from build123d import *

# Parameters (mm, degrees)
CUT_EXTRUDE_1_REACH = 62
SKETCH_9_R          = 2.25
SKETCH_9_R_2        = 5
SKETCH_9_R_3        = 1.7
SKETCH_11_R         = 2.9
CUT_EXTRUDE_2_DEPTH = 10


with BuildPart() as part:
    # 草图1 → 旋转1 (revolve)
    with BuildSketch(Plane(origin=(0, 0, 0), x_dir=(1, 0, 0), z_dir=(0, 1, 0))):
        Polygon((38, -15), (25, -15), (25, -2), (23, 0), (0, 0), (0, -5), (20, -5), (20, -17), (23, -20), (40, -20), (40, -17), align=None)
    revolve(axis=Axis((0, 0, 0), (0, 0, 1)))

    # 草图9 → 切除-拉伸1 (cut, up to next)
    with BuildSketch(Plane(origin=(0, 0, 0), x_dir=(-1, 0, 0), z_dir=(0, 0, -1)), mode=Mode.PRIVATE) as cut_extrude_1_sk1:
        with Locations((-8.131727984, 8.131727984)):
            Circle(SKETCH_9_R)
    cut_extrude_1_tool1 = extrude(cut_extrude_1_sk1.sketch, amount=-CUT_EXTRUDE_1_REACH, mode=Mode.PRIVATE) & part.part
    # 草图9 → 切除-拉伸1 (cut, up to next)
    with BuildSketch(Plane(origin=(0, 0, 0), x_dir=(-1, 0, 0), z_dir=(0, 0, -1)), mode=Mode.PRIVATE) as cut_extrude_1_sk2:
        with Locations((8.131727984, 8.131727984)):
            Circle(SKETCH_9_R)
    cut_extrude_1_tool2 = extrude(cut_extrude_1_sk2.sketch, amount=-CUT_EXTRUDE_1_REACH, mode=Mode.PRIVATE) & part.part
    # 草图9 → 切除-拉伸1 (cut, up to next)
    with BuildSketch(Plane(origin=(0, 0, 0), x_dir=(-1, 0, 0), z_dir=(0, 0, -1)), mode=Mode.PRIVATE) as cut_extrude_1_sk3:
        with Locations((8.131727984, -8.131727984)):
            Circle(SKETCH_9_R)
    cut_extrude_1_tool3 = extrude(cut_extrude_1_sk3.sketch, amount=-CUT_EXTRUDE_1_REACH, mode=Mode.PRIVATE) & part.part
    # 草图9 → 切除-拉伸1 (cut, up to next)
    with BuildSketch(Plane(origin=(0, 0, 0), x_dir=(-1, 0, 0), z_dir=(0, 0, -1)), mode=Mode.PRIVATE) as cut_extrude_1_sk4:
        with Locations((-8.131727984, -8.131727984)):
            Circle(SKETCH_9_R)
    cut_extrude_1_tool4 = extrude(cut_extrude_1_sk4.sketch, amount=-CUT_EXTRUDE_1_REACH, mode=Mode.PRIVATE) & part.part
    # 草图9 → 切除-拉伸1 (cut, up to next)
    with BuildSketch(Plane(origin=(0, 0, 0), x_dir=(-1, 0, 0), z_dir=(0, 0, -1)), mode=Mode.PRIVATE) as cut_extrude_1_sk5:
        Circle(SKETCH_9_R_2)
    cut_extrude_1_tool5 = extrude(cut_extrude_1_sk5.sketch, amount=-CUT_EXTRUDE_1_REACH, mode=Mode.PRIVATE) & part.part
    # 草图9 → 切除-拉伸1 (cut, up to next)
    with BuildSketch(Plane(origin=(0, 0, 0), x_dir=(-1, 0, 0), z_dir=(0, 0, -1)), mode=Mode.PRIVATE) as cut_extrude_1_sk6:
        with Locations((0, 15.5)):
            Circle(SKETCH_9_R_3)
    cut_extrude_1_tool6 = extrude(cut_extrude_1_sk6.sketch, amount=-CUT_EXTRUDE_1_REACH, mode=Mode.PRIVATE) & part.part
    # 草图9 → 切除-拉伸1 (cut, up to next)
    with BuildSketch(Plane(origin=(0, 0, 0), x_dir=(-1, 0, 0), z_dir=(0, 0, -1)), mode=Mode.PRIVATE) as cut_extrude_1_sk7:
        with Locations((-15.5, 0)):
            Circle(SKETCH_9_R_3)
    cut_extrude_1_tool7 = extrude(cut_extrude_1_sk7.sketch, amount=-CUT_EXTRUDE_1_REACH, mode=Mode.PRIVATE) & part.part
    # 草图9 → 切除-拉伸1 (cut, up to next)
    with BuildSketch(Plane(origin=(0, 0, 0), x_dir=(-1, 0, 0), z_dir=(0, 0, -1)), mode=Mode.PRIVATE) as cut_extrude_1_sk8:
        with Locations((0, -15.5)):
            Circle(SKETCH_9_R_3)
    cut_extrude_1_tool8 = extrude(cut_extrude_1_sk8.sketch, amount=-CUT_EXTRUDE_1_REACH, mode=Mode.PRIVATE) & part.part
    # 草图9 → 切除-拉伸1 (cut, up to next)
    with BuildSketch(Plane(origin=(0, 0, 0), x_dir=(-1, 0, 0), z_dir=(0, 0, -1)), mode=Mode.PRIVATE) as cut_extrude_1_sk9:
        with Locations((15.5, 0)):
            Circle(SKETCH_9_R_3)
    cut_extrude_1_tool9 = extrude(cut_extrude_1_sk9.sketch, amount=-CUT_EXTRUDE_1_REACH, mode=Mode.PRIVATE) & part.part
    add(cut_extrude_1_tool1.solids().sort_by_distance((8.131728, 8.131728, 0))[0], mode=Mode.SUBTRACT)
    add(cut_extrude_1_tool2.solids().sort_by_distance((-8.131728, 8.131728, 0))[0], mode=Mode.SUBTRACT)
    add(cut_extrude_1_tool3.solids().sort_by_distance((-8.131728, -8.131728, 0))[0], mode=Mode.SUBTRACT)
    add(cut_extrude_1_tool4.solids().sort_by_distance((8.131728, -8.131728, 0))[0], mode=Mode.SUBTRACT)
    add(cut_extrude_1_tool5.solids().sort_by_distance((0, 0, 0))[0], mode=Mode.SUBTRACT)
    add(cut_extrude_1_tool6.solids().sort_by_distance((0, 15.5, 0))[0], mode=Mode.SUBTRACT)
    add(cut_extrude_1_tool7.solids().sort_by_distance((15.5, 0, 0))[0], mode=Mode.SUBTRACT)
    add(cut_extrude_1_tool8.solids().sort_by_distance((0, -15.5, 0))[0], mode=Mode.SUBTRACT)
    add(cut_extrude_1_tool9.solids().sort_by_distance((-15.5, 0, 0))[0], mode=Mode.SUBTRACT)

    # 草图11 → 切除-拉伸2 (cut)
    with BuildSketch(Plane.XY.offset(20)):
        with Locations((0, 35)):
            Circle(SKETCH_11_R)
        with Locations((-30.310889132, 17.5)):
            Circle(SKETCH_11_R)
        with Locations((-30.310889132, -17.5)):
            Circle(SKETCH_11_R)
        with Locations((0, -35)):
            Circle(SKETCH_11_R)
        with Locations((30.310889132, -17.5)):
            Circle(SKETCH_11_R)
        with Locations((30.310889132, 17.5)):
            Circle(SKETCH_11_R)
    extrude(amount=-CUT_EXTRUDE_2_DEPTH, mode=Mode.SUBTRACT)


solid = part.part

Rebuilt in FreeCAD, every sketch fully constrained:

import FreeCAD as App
import Part
import Sketcher
from FreeCAD import Vector
Q = App.Units.Quantity


def add_polygon(sketch, points):
    """Adds a closed chain of lines whose ends are joined by coincident constraints."""
    first, n = sketch.GeometryCount, len(points)
    for a, b in zip(points, points[1:] + points[:1]):
        sketch.addGeometry(Part.LineSegment(App.Vector(*a, 0), App.Vector(*b, 0)), False)
    for i in range(n):
        sketch.addConstraint(Sketcher.Constraint("Coincident", first + i, 2, first + (i + 1) % n, 1))

doc = App.newDocument("Part")
params = doc.addObject("Spreadsheet::Sheet", "Params")
for row, (alias, value) in enumerate([
    ("sketch1_width", "13 mm"),
    ("sketch1_width2", "23 mm"),
    ("sketch1_width3", "20 mm"),
    ("sketch1_width4", "17 mm"),
    ("sketch1_height", "5 mm"),
    ("revolution_angle", "360 deg"),
    ("sketch2_diameter", "4.5 mm"),
    ("sketch3_diameter", "4.5 mm"),
    ("sketch4_diameter", "4.5 mm"),
    ("sketch5_diameter", "4.5 mm"),
    ("sketch6_diameter", "10 mm"),
    ("sketch7_diameter", "3.4 mm"),
    ("sketch8_diameter", "3.4 mm"),
    ("sketch9_diameter", "3.4 mm"),
    ("sketch10_diameter", "3.4 mm"),
    ("sketch11_diameter", "5.8 mm"),
    ("pocket10_length", "10 mm"),
], start=1):
    params.set(f"A{row}", alias)
    params.set(f"B{row}", "=" + value)
    params.setAlias(f"B{row}", alias)

body = doc.addObject("PartDesign::Body", "Body")

# Sketch on XZ plane
sketch1 = body.newObject("Sketcher::SketchObject", "Sketch")
sketch1.AttachmentSupport = (doc.getObject("XZ_Plane"), [""])
sketch1.MapMode = "FlatFace"
add_polygon(sketch1, [(38, 15), (25, 15), (25, 2), (23, 0), (0, 0), (0, 5), (20, 5), (20, 17), (23, 20), (40, 20), (40, 17)])  # lines 0-10
sketch1.addConstraint(Sketcher.Constraint("Horizontal", 0))
sketch1.addConstraint(Sketcher.Constraint("Vertical", 1))
sketch1.addConstraint(Sketcher.Constraint("Horizontal", 3))
sketch1.addConstraint(Sketcher.Constraint("Vertical", 4))
sketch1.addConstraint(Sketcher.Constraint("Horizontal", 5))
sketch1.addConstraint(Sketcher.Constraint("Vertical", 6))
sketch1.addConstraint(Sketcher.Constraint("Horizontal", 8))
sketch1.addConstraint(Sketcher.Constraint("Vertical", 9))
sketch1.addConstraint(Sketcher.Constraint("Coincident", 3, 2, -1, 1))
sketch1.addConstraint(Sketcher.Constraint("Parallel", 2, 7))
sketch1.addConstraint(Sketcher.Constraint("Parallel", 7, 10))
sketch1.addConstraint(Sketcher.Constraint("Horizontal", 6, 2, 9, 2))
sketch1.addConstraint(Sketcher.Constraint("Vertical", 2, 2, 7, 2))
sketch1.addConstraint(Sketcher.Constraint("Equal", 0, 1))
sketch1.addConstraint(Sketcher.Constraint("Equal", 2, 10))
sketch1.addConstraint(Sketcher.Constraint("DistanceX", 0, 2, 0, 1, Q("13 mm")))
sketch1.addConstraint(Sketcher.Constraint("DistanceX", 3, 2, 3, 1, Q("23 mm")))
sketch1.addConstraint(Sketcher.Constraint("DistanceX", 5, 1, 5, 2, Q("20 mm")))
sketch1.addConstraint(Sketcher.Constraint("DistanceX", 8, 1, 8, 2, Q("17 mm")))
sketch1.addConstraint(Sketcher.Constraint("DistanceY", 4, 1, 4, 2, Q("5 mm")))
sketch1.addConstraint(Sketcher.Constraint("DistanceY", 6, 1, 6, 2, Q("12 mm")))
sketch1.setExpression("Constraints[26]", "Params.sketch1_width")
sketch1.setExpression("Constraints[27]", "Params.sketch1_width2")
sketch1.setExpression("Constraints[28]", "Params.sketch1_width3")
sketch1.setExpression("Constraints[29]", "Params.sketch1_width4")
sketch1.setExpression("Constraints[30]", "Params.sketch1_height")
revolution = body.newObject("PartDesign::Revolution", "Revolution")
revolution.Profile = sketch1
revolution.ReferenceAxis = (sketch1, ["V_Axis"])
revolution.setExpression("Angle", "Params.revolution_angle")

# Sketch on XY plane
sketch2 = body.newObject("Sketcher::SketchObject", "Sketch001")
sketch2.AttachmentSupport = (doc.getObject("XY_Plane"), [""])
sketch2.MapMode = "FlatFace"
sketch2.addGeometry(Part.Circle(Vector(8.131728, 8.131728, 0), Vector(0, 0, 1), 2.25), False)
sketch2.addConstraint(Sketcher.Constraint("Diameter", 0, Q("4.5 mm")))
sketch2.addConstraint(Sketcher.Constraint("DistanceX", -1, 1, 0, 3, Q("8.131728 mm")))
sketch2.addConstraint(Sketcher.Constraint("DistanceY", -1, 1, 0, 3, Q("8.131728 mm")))
sketch2.setExpression("Constraints[0]", "Params.sketch2_diameter")
pocket1 = body.newObject("PartDesign::Pocket", "Pocket")
pocket1.Profile = sketch2
pocket1.Type = "UpToFirst"
pocket1.Reversed = True

# Sketch on XY plane
sketch3 = body.newObject("Sketcher::SketchObject", "Sketch002")
sketch3.AttachmentSupport = (doc.getObject("XY_Plane"), [""])
sketch3.MapMode = "FlatFace"
sketch3.addGeometry(Part.Circle(Vector(-8.131728, 8.131728, 0), Vector(0, 0, 1), 2.25), False)
sketch3.addConstraint(Sketcher.Constraint("Diameter", 0, Q("4.5 mm")))
sketch3.addConstraint(Sketcher.Constraint("DistanceX", 0, 3, -1, 1, Q("8.131728 mm")))
sketch3.addConstraint(Sketcher.Constraint("DistanceY", -1, 1, 0, 3, Q("8.131728 mm")))
sketch3.setExpression("Constraints[0]", "Params.sketch3_diameter")
pocket2 = body.newObject("PartDesign::Pocket", "Pocket001")
pocket2.Profile = sketch3
pocket2.Type = "UpToFirst"
pocket2.Reversed = True

# Sketch on XY plane
sketch4 = body.newObject("Sketcher::SketchObject", "Sketch003")
sketch4.AttachmentSupport = (doc.getObject("XY_Plane"), [""])
sketch4.MapMode = "FlatFace"
sketch4.addGeometry(Part.Circle(Vector(-8.131728, -8.131728, 0), Vector(0, 0, 1), 2.25), False)
sketch4.addConstraint(Sketcher.Constraint("Diameter", 0, Q("4.5 mm")))
sketch4.addConstraint(Sketcher.Constraint("DistanceX", 0, 3, -1, 1, Q("8.131728 mm")))
sketch4.addConstraint(Sketcher.Constraint("DistanceY", 0, 3, -1, 1, Q("8.131728 mm")))
sketch4.setExpression("Constraints[0]", "Params.sketch4_diameter")
pocket3 = body.newObject("PartDesign::Pocket", "Pocket002")
pocket3.Profile = sketch4
pocket3.Type = "UpToFirst"
pocket3.Reversed = True

# Sketch on XY plane
sketch5 = body.newObject("Sketcher::SketchObject", "Sketch004")
sketch5.AttachmentSupport = (doc.getObject("XY_Plane"), [""])
sketch5.MapMode = "FlatFace"
sketch5.addGeometry(Part.Circle(Vector(8.131728, -8.131728, 0), Vector(0, 0, 1), 2.25), False)
sketch5.addConstraint(Sketcher.Constraint("Diameter", 0, Q("4.5 mm")))
sketch5.addConstraint(Sketcher.Constraint("DistanceX", -1, 1, 0, 3, Q("8.131728 mm")))
sketch5.addConstraint(Sketcher.Constraint("DistanceY", 0, 3, -1, 1, Q("8.131728 mm")))
sketch5.setExpression("Constraints[0]", "Params.sketch5_diameter")
pocket4 = body.newObject("PartDesign::Pocket", "Pocket003")
pocket4.Profile = sketch5
pocket4.Type = "UpToFirst"
pocket4.Reversed = True

# Sketch on XY plane
sketch6 = body.newObject("Sketcher::SketchObject", "Sketch005")
sketch6.AttachmentSupport = (doc.getObject("XY_Plane"), [""])
sketch6.MapMode = "FlatFace"
sketch6.addGeometry(Part.Circle(Vector(0, 0, 0), Vector(0, 0, 1), 5), False)
sketch6.addConstraint(Sketcher.Constraint("Coincident", 0, 3, -1, 1))
sketch6.addConstraint(Sketcher.Constraint("Diameter", 0, Q("10 mm")))
sketch6.setExpression("Constraints[1]", "Params.sketch6_diameter")
pocket5 = body.newObject("PartDesign::Pocket", "Pocket004")
pocket5.Profile = sketch6
pocket5.Type = "UpToFirst"
pocket5.Reversed = True

# Sketch on XY plane
sketch7 = body.newObject("Sketcher::SketchObject", "Sketch006")
sketch7.AttachmentSupport = (doc.getObject("XY_Plane"), [""])
sketch7.MapMode = "FlatFace"
sketch7.addGeometry(Part.Circle(Vector(0, 15.5, 0), Vector(0, 0, 1), 1.7), False)
sketch7.addConstraint(Sketcher.Constraint("PointOnObject", 0, 3, -2))
sketch7.addConstraint(Sketcher.Constraint("Diameter", 0, Q("3.4 mm")))
sketch7.addConstraint(Sketcher.Constraint("DistanceY", -1, 1, 0, 3, Q("15.5 mm")))
sketch7.setExpression("Constraints[1]", "Params.sketch7_diameter")
pocket6 = body.newObject("PartDesign::Pocket", "Pocket005")
pocket6.Profile = sketch7
pocket6.Type = "UpToFirst"
pocket6.Reversed = True

# Sketch on XY plane
sketch8 = body.newObject("Sketcher::SketchObject", "Sketch007")
sketch8.AttachmentSupport = (doc.getObject("XY_Plane"), [""])
sketch8.MapMode = "FlatFace"
sketch8.addGeometry(Part.Circle(Vector(15.5, 0, 0), Vector(0, 0, 1), 1.7), False)
sketch8.addConstraint(Sketcher.Constraint("PointOnObject", 0, 3, -1))
sketch8.addConstraint(Sketcher.Constraint("Diameter", 0, Q("3.4 mm")))
sketch8.addConstraint(Sketcher.Constraint("DistanceX", -1, 1, 0, 3, Q("15.5 mm")))
sketch8.setExpression("Constraints[1]", "Params.sketch8_diameter")
pocket7 = body.newObject("PartDesign::Pocket", "Pocket006")
pocket7.Profile = sketch8
pocket7.Type = "UpToFirst"
pocket7.Reversed = True

# Sketch on XY plane
sketch9 = body.newObject("Sketcher::SketchObject", "Sketch008")
sketch9.AttachmentSupport = (doc.getObject("XY_Plane"), [""])
sketch9.MapMode = "FlatFace"
sketch9.addGeometry(Part.Circle(Vector(0, -15.5, 0), Vector(0, 0, 1), 1.7), False)
sketch9.addConstraint(Sketcher.Constraint("PointOnObject", 0, 3, -2))
sketch9.addConstraint(Sketcher.Constraint("Diameter", 0, Q("3.4 mm")))
sketch9.addConstraint(Sketcher.Constraint("DistanceY", 0, 3, -1, 1, Q("15.5 mm")))
sketch9.setExpression("Constraints[1]", "Params.sketch9_diameter")
pocket8 = body.newObject("PartDesign::Pocket", "Pocket007")
pocket8.Profile = sketch9
pocket8.Type = "UpToFirst"
pocket8.Reversed = True

# Sketch on XY plane
sketch10 = body.newObject("Sketcher::SketchObject", "Sketch009")
sketch10.AttachmentSupport = (doc.getObject("XY_Plane"), [""])
sketch10.MapMode = "FlatFace"
sketch10.addGeometry(Part.Circle(Vector(-15.5, 0, 0), Vector(0, 0, 1), 1.7), False)
sketch10.addConstraint(Sketcher.Constraint("PointOnObject", 0, 3, -1))
sketch10.addConstraint(Sketcher.Constraint("Diameter", 0, Q("3.4 mm")))
sketch10.addConstraint(Sketcher.Constraint("DistanceX", 0, 3, -1, 1, Q("15.5 mm")))
sketch10.setExpression("Constraints[1]", "Params.sketch10_diameter")
pocket9 = body.newObject("PartDesign::Pocket", "Pocket008")
pocket9.Profile = sketch10
pocket9.Type = "UpToFirst"
pocket9.Reversed = True

# Sketch on XY plane
sketch11 = body.newObject("Sketcher::SketchObject", "Sketch010")
sketch11.AttachmentSupport = (doc.getObject("XY_Plane"), [""])
sketch11.MapMode = "FlatFace"
sketch11.AttachmentOffset = App.Placement(Vector(0, 0, 20), App.Rotation())
sketch11.addGeometry(Part.Circle(Vector(0, 35, 0), Vector(0, 0, 1), 2.9), False)
sketch11.addGeometry(Part.Circle(Vector(-30.310889, 17.5, 0), Vector(0, 0, 1), 2.9), False)
sketch11.addGeometry(Part.Circle(Vector(-30.310889, -17.5, 0), Vector(0, 0, 1), 2.9), False)
sketch11.addGeometry(Part.Circle(Vector(0, -35, 0), Vector(0, 0, 1), 2.9), False)
sketch11.addGeometry(Part.Circle(Vector(30.310889, -17.5, 0), Vector(0, 0, 1), 2.9), False)
sketch11.addGeometry(Part.Circle(Vector(30.310889, 17.5, 0), Vector(0, 0, 1), 2.9), False)
sketch11.addConstraint(Sketcher.Constraint("Equal", 0, 1))
sketch11.addConstraint(Sketcher.Constraint("Equal", 1, 2))
sketch11.addConstraint(Sketcher.Constraint("Equal", 2, 3))
sketch11.addConstraint(Sketcher.Constraint("Equal", 3, 4))
sketch11.addConstraint(Sketcher.Constraint("Equal", 4, 5))
sketch11.addConstraint(Sketcher.Constraint("Symmetric", 0, 3, 3, 3, -1, 1))
sketch11.addConstraint(Sketcher.Constraint("Symmetric", 1, 3, 4, 3, -1, 1))
sketch11.addConstraint(Sketcher.Constraint("Symmetric", 2, 3, 5, 3, -1, 1))
sketch11.addConstraint(Sketcher.Constraint("Symmetric", 2, 3, 4, 3, -2))
sketch11.addConstraint(Sketcher.Constraint("PointOnObject", 0, 3, -2))
sketch11.addConstraint(Sketcher.Constraint("Diameter", 0, Q("5.8 mm")))
sketch11.addConstraint(Sketcher.Constraint("DistanceY", -1, 1, 0, 3, Q("35 mm")))
sketch11.addConstraint(Sketcher.Constraint("DistanceY", 2, 3, 1, 3, Q("35 mm")))
sketch11.addConstraint(Sketcher.Constraint("DistanceX", 1, 3, -1, 1, Q("30.310889 mm")))
sketch11.setExpression("Constraints[10]", "Params.sketch11_diameter")
pocket10 = body.newObject("PartDesign::Pocket", "Pocket009")
pocket10.Profile = sketch11
pocket10.setExpression("Length", "Params.pocket10_length")

doc.recompute()
